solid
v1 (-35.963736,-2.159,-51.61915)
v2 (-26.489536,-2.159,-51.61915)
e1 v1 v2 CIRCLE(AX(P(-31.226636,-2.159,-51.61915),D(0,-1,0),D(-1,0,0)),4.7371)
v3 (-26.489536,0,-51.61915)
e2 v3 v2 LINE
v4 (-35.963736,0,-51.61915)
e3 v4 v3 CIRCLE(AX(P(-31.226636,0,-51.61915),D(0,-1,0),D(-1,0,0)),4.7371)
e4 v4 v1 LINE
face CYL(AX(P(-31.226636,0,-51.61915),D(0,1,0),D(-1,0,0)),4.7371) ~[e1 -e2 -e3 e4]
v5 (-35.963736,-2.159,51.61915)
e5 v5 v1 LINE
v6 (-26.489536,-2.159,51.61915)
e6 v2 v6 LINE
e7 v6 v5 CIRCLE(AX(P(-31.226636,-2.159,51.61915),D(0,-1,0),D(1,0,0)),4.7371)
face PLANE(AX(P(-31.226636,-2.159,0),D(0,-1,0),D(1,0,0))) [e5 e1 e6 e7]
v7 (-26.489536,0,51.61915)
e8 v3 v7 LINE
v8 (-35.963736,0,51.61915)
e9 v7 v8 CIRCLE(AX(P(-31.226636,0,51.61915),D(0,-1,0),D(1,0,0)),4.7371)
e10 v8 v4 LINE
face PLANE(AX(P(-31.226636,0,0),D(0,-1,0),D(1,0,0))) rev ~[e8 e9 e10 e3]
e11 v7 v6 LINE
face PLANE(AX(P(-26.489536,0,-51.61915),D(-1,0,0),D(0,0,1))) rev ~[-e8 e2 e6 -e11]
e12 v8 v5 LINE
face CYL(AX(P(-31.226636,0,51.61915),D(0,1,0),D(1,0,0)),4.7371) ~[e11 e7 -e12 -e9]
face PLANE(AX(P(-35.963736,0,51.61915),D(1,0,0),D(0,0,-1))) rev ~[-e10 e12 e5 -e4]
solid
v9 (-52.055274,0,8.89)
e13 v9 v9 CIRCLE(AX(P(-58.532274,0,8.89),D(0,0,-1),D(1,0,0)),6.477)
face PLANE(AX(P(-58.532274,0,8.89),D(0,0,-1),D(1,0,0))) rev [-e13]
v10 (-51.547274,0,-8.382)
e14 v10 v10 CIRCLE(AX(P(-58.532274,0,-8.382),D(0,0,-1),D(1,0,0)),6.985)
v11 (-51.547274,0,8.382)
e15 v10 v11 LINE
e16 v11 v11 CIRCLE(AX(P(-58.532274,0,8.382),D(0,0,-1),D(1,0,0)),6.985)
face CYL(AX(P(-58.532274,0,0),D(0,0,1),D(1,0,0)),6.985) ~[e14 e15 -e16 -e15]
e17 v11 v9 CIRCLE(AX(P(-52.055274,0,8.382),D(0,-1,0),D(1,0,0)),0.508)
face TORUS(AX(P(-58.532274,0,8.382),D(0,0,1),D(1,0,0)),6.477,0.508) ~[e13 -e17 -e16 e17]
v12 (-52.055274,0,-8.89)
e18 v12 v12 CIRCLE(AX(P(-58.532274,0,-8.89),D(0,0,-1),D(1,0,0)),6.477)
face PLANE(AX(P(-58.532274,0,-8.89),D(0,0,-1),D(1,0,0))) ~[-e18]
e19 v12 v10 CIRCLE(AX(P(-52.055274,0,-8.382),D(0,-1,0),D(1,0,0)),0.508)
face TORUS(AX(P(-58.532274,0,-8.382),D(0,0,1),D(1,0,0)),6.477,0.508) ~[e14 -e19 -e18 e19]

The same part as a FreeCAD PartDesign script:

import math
import FreeCAD as App
import Part
import Sketcher
from FreeCAD import Vector
Q = App.Units.Quantity

doc = App.newDocument("Part")
body = doc.addObject("PartDesign::Body", "Body")

# Sketch on XZ plane
sketch1 = body.newObject("Sketcher::SketchObject", "Sketch")
sketch1.AttachmentSupport = (doc.getObject("XZ_Plane"), [""])
sketch1.MapMode = "FlatFace"
sketch1.addGeometry([
    Part.LineSegment(Vector(-59, 9, 0), Vector(-59, -9, 0)),
    Part.LineSegment(Vector(-59, -9, 0), Vector(-52, -9, 0)),
    Part.LineSegment(Vector(-52, -9, 0), Vector(-52, 9, 0)),
    Part.LineSegment(Vector(-52, 9, 0), Vector(-59, 9, 0)),
], False)
sketch1.addGeometry(Part.LineSegment(Vector(-59, 9, 0), Vector(-59, -9, 0)), True)  # axis
sketch1.addConstraint([
    Sketcher.Constraint("Coincident", 0, 2, 1, 1),
    Sketcher.Constraint("Coincident", 1, 2, 2, 1),
    Sketcher.Constraint("Coincident", 2, 2, 3, 1),
    Sketcher.Constraint("Coincident", 3, 2, 0, 1),
    Sketcher.Constraint("Vertical", 0),
    Sketcher.Constraint("Horizontal", 1),
    Sketcher.Constraint("Vertical", 2),
    Sketcher.Constraint("Horizontal", 3),
    Sketcher.Constraint("Vertical", 4),
    Sketcher.Constraint("Coincident", 4, 1, 3, 2),
    Sketcher.Constraint("Horizontal", 1, 2, 4, 2),
    Sketcher.Constraint("DistanceY", 0, 2, 0, 1, Q("0.7 in")),
    Sketcher.Constraint("DistanceX", 1, 1, 1, 2, Q("0.275 in")),
    Sketcher.Constraint("DistanceY", 0, 2, -1, 1, Q("0.35 in")),
    Sketcher.Constraint("DistanceX", 0, 2, -1, 1, 58.532274),
])
revolution = body.newObject("PartDesign::Revolution", "Revolution")
revolution.Profile = sketch1
revolution.ReferenceAxis = (sketch1, ["Axis0"])
revolution.Angle = 360
doc.recompute()

fillet = body.newObject("PartDesign::Fillet", "Fillet")
fillet.Base = (revolution, ["Edge1"])
fillet.UseAllEdges = True
fillet.Radius = Q("0.02 in")
body2 = doc.addObject("PartDesign::Body", "Body001")

# Sketch on XZ plane
sketch2 = body2.newObject("Sketcher::SketchObject", "Sketch001")
sketch2.AttachmentSupport = (doc.getObject("XZ_Plane001"), [""])
sketch2.MapMode = "FlatFace"
sketch2.addGeometry([
    Part.LineSegment(Vector(-26.5, -51.6, 0), Vector(-26.5, 51.6, 0)),
    Part.ArcOfCircle(Part.Circle(Vector(-31.2, 51.6, 0), Vector(0, 0, 1), 4.7), math.radians(0), math.radians(180)),
    Part.LineSegment(Vector(-36, 51.6, 0), Vector(-36, -51.6, 0)),
    Part.ArcOfCircle(Part.Circle(Vector(-31.2, -51.6, 0), Vector(0, 0, 1), 4.7), math.radians(180), math.radians(360)),
], False)
sketch2.addConstraint([
    Sketcher.Constraint("Tangent", 0, 2, 1, 1),
    Sketcher.Constraint("Tangent", 1, 2, 2, 1),
    Sketcher.Constraint("Tangent", 2, 2, 3, 1),
    Sketcher.Constraint("Tangent", 3, 2, 0, 1),
    Sketcher.Constraint("Vertical", 0),
    Sketcher.Constraint("Vertical", 2),
    Sketcher.Constraint("Radius", 1, Q("0.1865 in")),
    Sketcher.Constraint("DistanceY", 0, 1, 0, 2, Q("4.0645 in")),
    Sketcher.Constraint("DistanceY", -1, 1, 1, 3, 51.61915),
    Sketcher.Constraint("DistanceX", 1, 3, -1, 1, 31.226636),
])
pad1 = body2.newObject("PartDesign::Pad", "Pad")
pad1.Profile = sketch2
pad1.Length = Q("0.085 in")

doc.recompute()
